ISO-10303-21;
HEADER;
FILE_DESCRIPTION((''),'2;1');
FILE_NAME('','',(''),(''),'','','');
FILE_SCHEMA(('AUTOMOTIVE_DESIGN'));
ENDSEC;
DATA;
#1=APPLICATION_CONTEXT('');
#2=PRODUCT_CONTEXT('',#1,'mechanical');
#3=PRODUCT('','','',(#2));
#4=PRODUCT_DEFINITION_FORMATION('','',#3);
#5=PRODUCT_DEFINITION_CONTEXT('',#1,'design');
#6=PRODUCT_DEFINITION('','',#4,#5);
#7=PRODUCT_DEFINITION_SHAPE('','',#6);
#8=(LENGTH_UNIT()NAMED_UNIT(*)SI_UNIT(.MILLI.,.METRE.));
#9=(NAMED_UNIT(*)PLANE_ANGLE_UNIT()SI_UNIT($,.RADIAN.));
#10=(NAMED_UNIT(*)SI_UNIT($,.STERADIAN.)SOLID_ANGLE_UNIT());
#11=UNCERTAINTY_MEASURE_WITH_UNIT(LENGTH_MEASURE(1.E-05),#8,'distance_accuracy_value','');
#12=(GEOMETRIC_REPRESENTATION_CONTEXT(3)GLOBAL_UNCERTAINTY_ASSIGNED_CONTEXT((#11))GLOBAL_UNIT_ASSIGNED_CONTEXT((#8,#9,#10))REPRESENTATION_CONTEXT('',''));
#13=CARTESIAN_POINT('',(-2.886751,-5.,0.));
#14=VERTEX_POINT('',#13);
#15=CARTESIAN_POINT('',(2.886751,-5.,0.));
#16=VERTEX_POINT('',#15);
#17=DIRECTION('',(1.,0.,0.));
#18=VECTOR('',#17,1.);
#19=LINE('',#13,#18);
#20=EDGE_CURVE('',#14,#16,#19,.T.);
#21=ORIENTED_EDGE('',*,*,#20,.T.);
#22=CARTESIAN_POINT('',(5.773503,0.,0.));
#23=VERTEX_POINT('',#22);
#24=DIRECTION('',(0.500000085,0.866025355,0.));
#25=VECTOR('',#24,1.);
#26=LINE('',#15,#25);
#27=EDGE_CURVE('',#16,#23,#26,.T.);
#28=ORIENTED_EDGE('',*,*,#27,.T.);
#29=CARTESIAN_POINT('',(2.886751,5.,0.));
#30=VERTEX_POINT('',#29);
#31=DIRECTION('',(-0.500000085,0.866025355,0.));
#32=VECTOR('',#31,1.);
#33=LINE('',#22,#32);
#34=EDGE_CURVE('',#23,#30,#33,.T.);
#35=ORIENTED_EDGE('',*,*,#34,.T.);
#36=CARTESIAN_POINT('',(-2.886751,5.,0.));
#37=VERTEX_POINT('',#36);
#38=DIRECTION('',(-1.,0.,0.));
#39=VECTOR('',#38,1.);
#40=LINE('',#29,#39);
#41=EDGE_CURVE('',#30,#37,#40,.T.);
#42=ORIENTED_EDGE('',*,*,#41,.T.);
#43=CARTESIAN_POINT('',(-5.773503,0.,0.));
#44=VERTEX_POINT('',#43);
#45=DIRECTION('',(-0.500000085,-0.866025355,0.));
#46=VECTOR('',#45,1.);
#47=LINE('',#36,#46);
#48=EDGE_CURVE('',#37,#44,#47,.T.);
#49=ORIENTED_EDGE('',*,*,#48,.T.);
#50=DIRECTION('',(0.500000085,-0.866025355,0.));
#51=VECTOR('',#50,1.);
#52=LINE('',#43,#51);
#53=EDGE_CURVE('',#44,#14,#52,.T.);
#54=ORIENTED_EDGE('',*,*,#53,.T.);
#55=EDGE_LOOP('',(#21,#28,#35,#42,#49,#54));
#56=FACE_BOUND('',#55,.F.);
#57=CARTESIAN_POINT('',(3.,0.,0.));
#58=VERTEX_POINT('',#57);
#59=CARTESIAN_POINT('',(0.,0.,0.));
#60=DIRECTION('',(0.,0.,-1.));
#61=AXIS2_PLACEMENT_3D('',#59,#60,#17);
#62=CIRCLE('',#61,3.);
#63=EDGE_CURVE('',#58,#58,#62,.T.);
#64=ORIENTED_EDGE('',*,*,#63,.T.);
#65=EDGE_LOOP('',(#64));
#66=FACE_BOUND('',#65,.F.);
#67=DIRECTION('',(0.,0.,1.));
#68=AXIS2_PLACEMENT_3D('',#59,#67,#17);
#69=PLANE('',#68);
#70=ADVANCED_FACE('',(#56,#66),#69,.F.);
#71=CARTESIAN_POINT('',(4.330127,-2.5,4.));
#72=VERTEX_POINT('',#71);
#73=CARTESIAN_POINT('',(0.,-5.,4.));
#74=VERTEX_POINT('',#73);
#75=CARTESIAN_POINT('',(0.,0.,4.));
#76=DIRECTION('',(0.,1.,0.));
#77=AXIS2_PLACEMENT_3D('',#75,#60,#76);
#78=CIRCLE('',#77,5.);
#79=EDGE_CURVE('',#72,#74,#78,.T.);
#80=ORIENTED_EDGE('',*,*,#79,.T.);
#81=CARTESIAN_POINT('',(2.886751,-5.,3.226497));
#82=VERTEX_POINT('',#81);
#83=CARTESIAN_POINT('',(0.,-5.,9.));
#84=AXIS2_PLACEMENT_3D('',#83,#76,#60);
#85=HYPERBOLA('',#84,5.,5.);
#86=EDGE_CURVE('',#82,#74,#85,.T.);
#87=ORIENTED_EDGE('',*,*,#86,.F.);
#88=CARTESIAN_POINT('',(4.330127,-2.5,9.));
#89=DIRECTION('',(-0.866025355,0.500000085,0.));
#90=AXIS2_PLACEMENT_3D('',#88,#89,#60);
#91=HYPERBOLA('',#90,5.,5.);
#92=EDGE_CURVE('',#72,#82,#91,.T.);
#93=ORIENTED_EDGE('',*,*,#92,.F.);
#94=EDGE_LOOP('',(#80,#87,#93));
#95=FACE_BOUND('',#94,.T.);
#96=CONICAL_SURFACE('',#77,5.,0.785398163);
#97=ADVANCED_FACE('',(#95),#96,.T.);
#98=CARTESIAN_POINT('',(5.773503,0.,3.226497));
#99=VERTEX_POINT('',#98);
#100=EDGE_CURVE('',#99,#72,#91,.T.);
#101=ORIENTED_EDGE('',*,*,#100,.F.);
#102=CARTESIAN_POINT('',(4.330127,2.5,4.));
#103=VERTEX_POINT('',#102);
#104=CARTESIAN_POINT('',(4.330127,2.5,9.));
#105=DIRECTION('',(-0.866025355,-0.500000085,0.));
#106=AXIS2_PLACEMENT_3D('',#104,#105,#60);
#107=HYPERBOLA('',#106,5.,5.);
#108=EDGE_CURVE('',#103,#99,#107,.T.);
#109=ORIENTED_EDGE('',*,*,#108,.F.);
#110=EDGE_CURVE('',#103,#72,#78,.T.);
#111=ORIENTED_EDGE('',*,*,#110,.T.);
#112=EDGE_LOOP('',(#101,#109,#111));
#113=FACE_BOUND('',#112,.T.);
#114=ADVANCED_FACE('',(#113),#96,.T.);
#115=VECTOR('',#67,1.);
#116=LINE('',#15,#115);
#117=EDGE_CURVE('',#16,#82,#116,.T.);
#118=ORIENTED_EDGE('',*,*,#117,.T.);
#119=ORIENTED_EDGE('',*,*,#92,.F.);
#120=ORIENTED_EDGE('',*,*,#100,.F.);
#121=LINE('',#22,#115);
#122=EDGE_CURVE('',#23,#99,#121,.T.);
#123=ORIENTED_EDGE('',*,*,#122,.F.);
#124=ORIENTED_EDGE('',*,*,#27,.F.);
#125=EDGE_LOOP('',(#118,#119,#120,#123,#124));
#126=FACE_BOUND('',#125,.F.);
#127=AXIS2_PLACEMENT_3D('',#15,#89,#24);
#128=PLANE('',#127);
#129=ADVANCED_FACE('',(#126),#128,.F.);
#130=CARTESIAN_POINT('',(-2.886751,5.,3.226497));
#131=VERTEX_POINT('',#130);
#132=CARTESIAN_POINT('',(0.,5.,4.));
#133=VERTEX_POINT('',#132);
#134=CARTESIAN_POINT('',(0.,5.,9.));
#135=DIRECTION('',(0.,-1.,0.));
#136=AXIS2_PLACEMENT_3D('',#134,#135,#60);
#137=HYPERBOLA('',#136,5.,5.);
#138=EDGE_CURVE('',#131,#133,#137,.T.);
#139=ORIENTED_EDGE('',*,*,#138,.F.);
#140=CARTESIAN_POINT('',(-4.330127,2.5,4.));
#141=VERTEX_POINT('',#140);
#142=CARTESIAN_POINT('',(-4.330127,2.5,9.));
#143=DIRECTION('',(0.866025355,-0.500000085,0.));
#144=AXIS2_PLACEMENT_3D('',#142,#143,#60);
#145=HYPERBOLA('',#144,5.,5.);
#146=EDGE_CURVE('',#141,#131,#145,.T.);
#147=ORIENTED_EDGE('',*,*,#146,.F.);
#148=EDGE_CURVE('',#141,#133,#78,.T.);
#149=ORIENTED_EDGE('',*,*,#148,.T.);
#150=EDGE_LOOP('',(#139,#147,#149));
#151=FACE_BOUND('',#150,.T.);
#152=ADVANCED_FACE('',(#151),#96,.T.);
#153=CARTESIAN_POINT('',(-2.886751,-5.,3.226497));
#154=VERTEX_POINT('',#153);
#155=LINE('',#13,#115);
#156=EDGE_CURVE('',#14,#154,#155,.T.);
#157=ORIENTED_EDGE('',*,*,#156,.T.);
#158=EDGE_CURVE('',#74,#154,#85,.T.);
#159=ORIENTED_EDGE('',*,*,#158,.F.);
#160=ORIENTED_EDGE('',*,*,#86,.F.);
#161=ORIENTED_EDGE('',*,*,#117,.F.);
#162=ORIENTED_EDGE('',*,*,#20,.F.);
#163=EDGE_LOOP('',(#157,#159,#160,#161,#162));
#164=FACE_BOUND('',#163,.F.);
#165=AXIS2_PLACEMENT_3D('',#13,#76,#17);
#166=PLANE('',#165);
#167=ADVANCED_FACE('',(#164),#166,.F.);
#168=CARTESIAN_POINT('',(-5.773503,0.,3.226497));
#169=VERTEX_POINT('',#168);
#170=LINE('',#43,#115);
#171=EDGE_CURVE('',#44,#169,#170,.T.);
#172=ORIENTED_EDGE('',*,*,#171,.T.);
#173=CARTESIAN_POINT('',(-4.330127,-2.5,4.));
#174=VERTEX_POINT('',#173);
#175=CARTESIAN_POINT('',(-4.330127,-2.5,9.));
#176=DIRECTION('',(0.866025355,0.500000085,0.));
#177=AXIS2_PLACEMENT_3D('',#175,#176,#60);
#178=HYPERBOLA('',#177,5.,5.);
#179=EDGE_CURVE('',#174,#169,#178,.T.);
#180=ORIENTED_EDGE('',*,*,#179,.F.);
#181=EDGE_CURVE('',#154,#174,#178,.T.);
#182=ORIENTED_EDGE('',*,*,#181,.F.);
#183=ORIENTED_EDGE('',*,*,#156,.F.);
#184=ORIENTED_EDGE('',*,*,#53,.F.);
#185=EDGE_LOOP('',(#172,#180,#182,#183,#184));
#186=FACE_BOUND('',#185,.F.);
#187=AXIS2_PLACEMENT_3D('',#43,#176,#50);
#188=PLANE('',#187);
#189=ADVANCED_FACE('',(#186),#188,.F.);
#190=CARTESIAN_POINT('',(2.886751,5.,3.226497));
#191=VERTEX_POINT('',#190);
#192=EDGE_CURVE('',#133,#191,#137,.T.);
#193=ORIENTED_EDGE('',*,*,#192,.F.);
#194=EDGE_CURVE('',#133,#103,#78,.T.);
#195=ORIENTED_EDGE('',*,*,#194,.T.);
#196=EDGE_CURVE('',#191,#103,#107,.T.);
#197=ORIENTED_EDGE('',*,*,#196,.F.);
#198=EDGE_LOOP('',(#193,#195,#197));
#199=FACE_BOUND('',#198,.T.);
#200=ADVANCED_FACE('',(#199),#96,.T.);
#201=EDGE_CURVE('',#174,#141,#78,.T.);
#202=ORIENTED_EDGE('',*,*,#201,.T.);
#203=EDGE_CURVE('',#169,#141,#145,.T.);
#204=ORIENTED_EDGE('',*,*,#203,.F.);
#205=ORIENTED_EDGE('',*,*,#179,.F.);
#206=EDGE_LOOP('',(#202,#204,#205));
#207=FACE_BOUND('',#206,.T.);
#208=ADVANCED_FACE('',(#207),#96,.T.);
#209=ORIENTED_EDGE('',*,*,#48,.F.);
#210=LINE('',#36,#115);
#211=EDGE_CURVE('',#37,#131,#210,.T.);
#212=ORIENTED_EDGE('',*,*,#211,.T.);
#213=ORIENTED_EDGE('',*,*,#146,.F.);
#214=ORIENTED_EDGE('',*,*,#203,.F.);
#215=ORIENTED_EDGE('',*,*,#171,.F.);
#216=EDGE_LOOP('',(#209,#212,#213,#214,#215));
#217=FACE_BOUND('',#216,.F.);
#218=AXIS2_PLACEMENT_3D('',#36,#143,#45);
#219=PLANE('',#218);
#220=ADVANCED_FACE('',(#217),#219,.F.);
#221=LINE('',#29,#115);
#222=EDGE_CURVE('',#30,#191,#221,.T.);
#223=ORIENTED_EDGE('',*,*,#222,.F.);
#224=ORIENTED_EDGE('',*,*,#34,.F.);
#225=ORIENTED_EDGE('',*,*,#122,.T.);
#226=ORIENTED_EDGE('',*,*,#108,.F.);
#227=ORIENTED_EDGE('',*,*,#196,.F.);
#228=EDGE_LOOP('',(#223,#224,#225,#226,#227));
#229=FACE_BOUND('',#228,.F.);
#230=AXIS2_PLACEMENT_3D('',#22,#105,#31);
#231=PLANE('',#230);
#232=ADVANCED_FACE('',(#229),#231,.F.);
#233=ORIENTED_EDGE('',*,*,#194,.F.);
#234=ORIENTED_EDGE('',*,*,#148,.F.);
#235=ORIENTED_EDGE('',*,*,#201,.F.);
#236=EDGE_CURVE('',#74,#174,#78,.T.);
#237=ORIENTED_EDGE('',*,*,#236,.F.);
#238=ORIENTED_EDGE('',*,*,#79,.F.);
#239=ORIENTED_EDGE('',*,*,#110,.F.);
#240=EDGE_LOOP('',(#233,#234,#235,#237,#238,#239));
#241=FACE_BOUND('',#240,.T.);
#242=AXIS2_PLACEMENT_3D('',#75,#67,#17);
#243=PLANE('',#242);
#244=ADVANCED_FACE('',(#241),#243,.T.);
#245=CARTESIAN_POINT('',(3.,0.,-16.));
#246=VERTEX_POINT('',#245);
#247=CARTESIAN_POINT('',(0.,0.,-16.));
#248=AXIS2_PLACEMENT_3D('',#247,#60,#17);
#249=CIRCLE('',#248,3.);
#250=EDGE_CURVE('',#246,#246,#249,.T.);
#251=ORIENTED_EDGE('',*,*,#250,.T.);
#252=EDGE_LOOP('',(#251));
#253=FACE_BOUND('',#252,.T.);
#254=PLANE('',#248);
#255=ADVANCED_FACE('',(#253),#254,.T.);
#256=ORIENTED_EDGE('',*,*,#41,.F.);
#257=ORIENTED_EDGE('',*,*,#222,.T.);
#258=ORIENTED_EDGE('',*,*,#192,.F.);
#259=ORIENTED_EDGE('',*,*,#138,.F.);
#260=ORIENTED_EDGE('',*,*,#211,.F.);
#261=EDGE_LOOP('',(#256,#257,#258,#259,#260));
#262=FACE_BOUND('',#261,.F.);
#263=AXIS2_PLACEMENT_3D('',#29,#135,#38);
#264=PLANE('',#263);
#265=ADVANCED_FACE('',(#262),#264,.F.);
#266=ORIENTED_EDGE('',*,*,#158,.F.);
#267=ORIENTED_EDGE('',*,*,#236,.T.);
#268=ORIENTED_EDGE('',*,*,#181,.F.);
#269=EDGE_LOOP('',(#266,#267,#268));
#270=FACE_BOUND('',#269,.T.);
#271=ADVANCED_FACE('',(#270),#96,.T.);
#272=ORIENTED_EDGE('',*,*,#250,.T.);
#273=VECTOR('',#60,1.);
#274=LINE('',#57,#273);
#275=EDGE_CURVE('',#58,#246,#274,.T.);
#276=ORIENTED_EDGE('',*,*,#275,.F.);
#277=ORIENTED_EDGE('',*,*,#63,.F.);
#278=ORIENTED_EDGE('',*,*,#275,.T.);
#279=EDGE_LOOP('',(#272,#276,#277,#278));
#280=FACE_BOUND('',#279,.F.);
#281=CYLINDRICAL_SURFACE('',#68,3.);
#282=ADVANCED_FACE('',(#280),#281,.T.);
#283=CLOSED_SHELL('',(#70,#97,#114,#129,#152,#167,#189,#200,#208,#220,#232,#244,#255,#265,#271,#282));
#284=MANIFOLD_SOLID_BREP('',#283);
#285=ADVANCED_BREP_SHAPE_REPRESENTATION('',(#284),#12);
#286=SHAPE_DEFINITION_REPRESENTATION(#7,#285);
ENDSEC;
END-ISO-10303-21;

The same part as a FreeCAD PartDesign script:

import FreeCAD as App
import Part
import Sketcher
from FreeCAD import Vector
Q = App.Units.Quantity


def add_polygon(sketch, points):
    """Adds a closed chain of lines whose ends are joined by coincident constraints."""
    first, n = sketch.GeometryCount, len(points)
    for a, b in zip(points, points[1:] + points[:1]):
        sketch.addGeometry(Part.LineSegment(App.Vector(*a, 0), App.Vector(*b, 0)), False)
    for i in range(n):
        sketch.addConstraint(Sketcher.Constraint("Coincident", first + i, 2, first + (i + 1) % n, 1))

doc = App.newDocument("Part")
body = doc.addObject("PartDesign::Body", "Body")

sketch1 = body.newObject("Sketcher::SketchObject", "Sketch")
sketch1.AttachmentSupport = (doc.getObject("XY_Plane"), [""])
sketch1.MapMode = "FlatFace"
add_polygon(sketch1, [(-3, -5), (3, -5), (6, 0), (3, 5), (-3, 5), (-6, 0)])
sketch1.addConstraint([
    Sketcher.Constraint("Horizontal", 0),
    Sketcher.Constraint("Horizontal", 3),
    Sketcher.Constraint("Symmetric", 0, 2, 3, 2, -1, 1),
    Sketcher.Constraint("Symmetric", 1, 2, 4, 2, -1, 1),
    Sketcher.Constraint("PointOnObject", 1, 2, -1),
    Sketcher.Constraint("Parallel", 2, 5),
    Sketcher.Constraint("Vertical", 0, 2, 2, 2),
    Sketcher.Constraint("Angle", 1, Q("59.999994 deg")),
    Sketcher.Constraint("DistanceY", 0, 2, -1, 1, Q("5 mm")),
    Sketcher.Constraint("DistanceX", 0, 1, 0, 2, Q("5.773502 mm")),
])
pad1 = body.newObject("PartDesign::Pad", "Pad")
pad1.Profile = sketch1
pad1.Length = 4

sketch2 = body.newObject("Sketcher::SketchObject", "Sketch001")
sketch2.AttachmentSupport = (doc.getObject("XY_Plane"), [""])
sketch2.MapMode = "FlatFace"
sketch2.addGeometry(Part.Circle(Vector(0, 0, 0), Vector(0, 0, 1), 3), False)
sketch2.addConstraint([
    Sketcher.Constraint("Coincident", 0, 3, -1, 1),
    Sketcher.Constraint("Diameter", 0, Q("6 mm")),
])
pad2 = body.newObject("PartDesign::Pad", "Pad001")
pad2.Profile = sketch2
pad2.Length = 16
pad2.Reversed = True

sketch3 = body.newObject("Sketcher::SketchObject", "Sketch002")
sketch3.AttachmentSupport = (doc.getObject("YZ_Plane"), [""])
sketch3.MapMode = "FlatFace"
add_polygon(sketch3, [(9, 4), (5, 4), (9, 0)])
sketch3.addConstraint([
    Sketcher.Constraint("Horizontal", 0),
    Sketcher.Constraint("Vertical", 2),
    Sketcher.Constraint("PointOnObject", 1, 2, -1),
    Sketcher.Constraint("Equal", 0, 2),
    Sketcher.Constraint("DistanceX", 0, 2, 0, 1, Q("4 mm")),
    Sketcher.Constraint("DistanceX", -1, 1, 0, 2, Q("5 mm")),
])
groove = body.newObject("PartDesign::Groove", "Groove")
groove.Profile = sketch3
groove.ReferenceAxis = (sketch3, ["V_Axis"])
groove.Angle = 360

doc.recompute()
